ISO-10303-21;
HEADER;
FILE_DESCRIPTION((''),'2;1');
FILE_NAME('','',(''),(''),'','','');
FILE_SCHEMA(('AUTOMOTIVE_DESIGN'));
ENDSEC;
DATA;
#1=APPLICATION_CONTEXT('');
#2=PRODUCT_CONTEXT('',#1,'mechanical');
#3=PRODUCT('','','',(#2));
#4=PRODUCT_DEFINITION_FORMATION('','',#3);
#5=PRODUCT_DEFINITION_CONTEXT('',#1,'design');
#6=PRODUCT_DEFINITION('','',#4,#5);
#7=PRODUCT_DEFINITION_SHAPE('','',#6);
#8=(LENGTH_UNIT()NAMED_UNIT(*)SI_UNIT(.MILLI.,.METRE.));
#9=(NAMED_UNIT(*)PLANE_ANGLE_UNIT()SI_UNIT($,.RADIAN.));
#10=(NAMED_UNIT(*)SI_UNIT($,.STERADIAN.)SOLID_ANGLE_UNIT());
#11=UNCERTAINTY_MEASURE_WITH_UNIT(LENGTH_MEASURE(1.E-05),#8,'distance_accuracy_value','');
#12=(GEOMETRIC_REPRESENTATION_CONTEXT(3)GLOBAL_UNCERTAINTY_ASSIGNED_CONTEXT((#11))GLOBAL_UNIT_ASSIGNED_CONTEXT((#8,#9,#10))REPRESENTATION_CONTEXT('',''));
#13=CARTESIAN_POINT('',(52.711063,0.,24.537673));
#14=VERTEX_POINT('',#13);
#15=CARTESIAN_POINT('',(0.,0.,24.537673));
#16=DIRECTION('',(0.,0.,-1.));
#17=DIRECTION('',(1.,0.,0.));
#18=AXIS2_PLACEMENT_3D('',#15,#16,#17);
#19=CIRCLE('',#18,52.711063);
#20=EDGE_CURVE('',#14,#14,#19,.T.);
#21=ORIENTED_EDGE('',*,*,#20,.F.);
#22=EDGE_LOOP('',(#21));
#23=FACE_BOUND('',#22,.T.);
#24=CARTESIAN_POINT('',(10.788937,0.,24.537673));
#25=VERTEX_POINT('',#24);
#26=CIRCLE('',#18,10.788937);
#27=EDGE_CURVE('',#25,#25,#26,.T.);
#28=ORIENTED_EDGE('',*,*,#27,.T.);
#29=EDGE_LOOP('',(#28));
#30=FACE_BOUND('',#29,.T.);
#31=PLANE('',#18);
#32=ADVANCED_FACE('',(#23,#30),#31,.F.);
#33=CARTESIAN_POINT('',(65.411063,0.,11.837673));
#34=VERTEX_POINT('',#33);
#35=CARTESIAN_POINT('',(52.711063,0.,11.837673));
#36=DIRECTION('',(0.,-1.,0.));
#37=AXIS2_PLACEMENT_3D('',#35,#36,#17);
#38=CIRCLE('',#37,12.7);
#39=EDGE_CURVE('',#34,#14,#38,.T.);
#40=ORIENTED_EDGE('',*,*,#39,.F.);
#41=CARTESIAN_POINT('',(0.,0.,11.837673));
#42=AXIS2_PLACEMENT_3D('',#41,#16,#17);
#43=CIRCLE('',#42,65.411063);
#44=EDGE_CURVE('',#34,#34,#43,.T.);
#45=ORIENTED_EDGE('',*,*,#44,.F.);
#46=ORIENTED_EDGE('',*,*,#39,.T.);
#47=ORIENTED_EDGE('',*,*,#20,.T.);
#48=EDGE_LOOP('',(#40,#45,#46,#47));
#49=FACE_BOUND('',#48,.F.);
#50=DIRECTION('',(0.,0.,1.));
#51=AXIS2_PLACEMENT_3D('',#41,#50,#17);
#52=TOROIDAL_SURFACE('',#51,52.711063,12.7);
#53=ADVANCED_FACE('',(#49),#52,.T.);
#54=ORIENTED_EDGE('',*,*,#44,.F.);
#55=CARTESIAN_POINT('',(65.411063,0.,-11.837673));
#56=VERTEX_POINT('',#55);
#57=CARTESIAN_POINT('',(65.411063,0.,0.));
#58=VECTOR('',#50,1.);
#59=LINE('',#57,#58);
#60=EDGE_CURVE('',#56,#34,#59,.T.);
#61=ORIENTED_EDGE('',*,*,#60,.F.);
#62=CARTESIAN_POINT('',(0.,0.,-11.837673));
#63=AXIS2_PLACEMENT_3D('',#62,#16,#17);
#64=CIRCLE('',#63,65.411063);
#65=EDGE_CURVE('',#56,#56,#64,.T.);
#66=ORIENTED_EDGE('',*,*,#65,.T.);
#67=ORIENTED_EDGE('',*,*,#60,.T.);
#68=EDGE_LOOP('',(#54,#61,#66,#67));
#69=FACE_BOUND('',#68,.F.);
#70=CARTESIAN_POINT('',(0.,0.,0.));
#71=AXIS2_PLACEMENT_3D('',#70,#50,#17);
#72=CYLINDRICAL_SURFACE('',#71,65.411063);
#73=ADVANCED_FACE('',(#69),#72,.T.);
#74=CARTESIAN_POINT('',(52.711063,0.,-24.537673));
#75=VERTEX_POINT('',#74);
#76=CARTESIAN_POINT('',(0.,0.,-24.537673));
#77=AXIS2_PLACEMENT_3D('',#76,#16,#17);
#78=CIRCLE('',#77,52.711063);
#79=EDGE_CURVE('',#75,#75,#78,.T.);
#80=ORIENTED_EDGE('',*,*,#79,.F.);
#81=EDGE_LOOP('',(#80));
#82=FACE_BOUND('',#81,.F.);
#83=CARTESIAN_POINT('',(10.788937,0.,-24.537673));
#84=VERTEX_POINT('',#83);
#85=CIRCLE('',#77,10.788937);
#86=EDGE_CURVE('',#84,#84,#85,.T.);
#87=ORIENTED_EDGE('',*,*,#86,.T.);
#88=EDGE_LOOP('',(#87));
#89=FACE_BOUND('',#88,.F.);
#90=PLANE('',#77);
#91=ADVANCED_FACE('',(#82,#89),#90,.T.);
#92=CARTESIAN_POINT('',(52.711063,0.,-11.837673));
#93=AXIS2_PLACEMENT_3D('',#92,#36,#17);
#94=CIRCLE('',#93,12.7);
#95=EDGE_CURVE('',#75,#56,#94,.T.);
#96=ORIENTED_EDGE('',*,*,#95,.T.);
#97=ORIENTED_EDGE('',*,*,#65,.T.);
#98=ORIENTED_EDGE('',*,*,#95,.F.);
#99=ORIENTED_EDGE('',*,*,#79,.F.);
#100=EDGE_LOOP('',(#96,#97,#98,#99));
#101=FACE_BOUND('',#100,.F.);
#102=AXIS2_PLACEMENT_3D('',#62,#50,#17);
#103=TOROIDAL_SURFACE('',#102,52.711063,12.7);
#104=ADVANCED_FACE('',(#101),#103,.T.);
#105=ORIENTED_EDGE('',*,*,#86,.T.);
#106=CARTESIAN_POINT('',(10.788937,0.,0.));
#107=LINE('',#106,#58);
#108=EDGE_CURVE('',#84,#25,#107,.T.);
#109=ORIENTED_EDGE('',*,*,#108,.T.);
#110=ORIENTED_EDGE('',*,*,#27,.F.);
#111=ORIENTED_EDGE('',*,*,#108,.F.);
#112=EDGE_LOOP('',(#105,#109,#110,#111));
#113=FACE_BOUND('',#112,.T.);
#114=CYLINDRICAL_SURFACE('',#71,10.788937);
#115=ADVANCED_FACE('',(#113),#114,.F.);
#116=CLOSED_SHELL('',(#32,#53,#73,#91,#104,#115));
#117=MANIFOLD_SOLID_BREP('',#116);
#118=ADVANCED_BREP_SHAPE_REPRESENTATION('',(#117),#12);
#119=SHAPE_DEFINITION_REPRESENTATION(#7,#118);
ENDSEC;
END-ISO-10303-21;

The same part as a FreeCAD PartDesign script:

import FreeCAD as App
import Part
import Sketcher

V = App.Vector


def edges_at(feature, points):
    """Names of the edges that pass closest to the given points."""
    edges = feature.Shape.Edges
    near = lambda p: min(range(len(edges)), key=lambda i: edges[i].distToShape(Part.Vertex(*p))[0])
    return sorted({f"Edge{near(p) + 1}" for p in points})


def add_polygon(sketch, points):
    """Adds a closed chain of lines whose ends are joined by coincident constraints."""
    first, n = sketch.GeometryCount, len(points)
    for a, b in zip(points, points[1:] + points[:1]):
        sketch.addGeometry(Part.LineSegment(App.Vector(*a, 0), App.Vector(*b, 0)), False)
    for i in range(n):
        sketch.addConstraint(Sketcher.Constraint("Coincident", first + i, 2, first + (i + 1) % n, 1))

doc = App.newDocument("Part")
params = doc.addObject("Spreadsheet::Sheet", "Params")
for row, (alias, value) in enumerate([
    ("revolution_angle", "360 deg"),
    ("fillet_radius", "0.5 in"),
], start=1):
    params.set(f"A{row}", alias)
    params.set(f"B{row}", "=" + value)
    params.setAlias(f"B{row}", alias)

body = doc.addObject("PartDesign::Body", "Body")

sketch1 = body.newObject("Sketcher::SketchObject", "Sketch")
sketch1.AttachmentSupport = (doc.getObject("XZ_Plane"), [""])
sketch1.MapMode = "FlatFace"
add_polygon(sketch1, [(11, 25), (11, -25), (65, -25), (65, 25)])
sketch1.addConstraint([
    Sketcher.Constraint("Vertical", 0),
    Sketcher.Constraint("Horizontal", 1),
    Sketcher.Constraint("Vertical", 2),
    Sketcher.Constraint("Horizontal", 3),
    Sketcher.Constraint("DistanceX", 1, 1, 1, 2, 54.622126),
    Sketcher.Constraint("DistanceY", 0, 2, 0, 1, 49.075346),
    Sketcher.Constraint("DistanceX", -1, 1, 0, 2, 10.788937),
    Sketcher.Constraint("DistanceY", 0, 2, -1, 1, 24.537673),
])
revolution = body.newObject("PartDesign::Revolution", "Revolution")
revolution.Profile = sketch1
revolution.ReferenceAxis = (sketch1, ["V_Axis"])
revolution.setExpression("Angle", "Params.revolution_angle")
doc.recompute()

fillet = body.newObject("PartDesign::Fillet", "Fillet")
fillet.Base = (revolution, edges_at(revolution, [(-65.411, 0, 24.538), (-65.411, 0, -24.538)]))
fillet.setExpression("Radius", "Params.fillet_radius")

doc.recompute()
